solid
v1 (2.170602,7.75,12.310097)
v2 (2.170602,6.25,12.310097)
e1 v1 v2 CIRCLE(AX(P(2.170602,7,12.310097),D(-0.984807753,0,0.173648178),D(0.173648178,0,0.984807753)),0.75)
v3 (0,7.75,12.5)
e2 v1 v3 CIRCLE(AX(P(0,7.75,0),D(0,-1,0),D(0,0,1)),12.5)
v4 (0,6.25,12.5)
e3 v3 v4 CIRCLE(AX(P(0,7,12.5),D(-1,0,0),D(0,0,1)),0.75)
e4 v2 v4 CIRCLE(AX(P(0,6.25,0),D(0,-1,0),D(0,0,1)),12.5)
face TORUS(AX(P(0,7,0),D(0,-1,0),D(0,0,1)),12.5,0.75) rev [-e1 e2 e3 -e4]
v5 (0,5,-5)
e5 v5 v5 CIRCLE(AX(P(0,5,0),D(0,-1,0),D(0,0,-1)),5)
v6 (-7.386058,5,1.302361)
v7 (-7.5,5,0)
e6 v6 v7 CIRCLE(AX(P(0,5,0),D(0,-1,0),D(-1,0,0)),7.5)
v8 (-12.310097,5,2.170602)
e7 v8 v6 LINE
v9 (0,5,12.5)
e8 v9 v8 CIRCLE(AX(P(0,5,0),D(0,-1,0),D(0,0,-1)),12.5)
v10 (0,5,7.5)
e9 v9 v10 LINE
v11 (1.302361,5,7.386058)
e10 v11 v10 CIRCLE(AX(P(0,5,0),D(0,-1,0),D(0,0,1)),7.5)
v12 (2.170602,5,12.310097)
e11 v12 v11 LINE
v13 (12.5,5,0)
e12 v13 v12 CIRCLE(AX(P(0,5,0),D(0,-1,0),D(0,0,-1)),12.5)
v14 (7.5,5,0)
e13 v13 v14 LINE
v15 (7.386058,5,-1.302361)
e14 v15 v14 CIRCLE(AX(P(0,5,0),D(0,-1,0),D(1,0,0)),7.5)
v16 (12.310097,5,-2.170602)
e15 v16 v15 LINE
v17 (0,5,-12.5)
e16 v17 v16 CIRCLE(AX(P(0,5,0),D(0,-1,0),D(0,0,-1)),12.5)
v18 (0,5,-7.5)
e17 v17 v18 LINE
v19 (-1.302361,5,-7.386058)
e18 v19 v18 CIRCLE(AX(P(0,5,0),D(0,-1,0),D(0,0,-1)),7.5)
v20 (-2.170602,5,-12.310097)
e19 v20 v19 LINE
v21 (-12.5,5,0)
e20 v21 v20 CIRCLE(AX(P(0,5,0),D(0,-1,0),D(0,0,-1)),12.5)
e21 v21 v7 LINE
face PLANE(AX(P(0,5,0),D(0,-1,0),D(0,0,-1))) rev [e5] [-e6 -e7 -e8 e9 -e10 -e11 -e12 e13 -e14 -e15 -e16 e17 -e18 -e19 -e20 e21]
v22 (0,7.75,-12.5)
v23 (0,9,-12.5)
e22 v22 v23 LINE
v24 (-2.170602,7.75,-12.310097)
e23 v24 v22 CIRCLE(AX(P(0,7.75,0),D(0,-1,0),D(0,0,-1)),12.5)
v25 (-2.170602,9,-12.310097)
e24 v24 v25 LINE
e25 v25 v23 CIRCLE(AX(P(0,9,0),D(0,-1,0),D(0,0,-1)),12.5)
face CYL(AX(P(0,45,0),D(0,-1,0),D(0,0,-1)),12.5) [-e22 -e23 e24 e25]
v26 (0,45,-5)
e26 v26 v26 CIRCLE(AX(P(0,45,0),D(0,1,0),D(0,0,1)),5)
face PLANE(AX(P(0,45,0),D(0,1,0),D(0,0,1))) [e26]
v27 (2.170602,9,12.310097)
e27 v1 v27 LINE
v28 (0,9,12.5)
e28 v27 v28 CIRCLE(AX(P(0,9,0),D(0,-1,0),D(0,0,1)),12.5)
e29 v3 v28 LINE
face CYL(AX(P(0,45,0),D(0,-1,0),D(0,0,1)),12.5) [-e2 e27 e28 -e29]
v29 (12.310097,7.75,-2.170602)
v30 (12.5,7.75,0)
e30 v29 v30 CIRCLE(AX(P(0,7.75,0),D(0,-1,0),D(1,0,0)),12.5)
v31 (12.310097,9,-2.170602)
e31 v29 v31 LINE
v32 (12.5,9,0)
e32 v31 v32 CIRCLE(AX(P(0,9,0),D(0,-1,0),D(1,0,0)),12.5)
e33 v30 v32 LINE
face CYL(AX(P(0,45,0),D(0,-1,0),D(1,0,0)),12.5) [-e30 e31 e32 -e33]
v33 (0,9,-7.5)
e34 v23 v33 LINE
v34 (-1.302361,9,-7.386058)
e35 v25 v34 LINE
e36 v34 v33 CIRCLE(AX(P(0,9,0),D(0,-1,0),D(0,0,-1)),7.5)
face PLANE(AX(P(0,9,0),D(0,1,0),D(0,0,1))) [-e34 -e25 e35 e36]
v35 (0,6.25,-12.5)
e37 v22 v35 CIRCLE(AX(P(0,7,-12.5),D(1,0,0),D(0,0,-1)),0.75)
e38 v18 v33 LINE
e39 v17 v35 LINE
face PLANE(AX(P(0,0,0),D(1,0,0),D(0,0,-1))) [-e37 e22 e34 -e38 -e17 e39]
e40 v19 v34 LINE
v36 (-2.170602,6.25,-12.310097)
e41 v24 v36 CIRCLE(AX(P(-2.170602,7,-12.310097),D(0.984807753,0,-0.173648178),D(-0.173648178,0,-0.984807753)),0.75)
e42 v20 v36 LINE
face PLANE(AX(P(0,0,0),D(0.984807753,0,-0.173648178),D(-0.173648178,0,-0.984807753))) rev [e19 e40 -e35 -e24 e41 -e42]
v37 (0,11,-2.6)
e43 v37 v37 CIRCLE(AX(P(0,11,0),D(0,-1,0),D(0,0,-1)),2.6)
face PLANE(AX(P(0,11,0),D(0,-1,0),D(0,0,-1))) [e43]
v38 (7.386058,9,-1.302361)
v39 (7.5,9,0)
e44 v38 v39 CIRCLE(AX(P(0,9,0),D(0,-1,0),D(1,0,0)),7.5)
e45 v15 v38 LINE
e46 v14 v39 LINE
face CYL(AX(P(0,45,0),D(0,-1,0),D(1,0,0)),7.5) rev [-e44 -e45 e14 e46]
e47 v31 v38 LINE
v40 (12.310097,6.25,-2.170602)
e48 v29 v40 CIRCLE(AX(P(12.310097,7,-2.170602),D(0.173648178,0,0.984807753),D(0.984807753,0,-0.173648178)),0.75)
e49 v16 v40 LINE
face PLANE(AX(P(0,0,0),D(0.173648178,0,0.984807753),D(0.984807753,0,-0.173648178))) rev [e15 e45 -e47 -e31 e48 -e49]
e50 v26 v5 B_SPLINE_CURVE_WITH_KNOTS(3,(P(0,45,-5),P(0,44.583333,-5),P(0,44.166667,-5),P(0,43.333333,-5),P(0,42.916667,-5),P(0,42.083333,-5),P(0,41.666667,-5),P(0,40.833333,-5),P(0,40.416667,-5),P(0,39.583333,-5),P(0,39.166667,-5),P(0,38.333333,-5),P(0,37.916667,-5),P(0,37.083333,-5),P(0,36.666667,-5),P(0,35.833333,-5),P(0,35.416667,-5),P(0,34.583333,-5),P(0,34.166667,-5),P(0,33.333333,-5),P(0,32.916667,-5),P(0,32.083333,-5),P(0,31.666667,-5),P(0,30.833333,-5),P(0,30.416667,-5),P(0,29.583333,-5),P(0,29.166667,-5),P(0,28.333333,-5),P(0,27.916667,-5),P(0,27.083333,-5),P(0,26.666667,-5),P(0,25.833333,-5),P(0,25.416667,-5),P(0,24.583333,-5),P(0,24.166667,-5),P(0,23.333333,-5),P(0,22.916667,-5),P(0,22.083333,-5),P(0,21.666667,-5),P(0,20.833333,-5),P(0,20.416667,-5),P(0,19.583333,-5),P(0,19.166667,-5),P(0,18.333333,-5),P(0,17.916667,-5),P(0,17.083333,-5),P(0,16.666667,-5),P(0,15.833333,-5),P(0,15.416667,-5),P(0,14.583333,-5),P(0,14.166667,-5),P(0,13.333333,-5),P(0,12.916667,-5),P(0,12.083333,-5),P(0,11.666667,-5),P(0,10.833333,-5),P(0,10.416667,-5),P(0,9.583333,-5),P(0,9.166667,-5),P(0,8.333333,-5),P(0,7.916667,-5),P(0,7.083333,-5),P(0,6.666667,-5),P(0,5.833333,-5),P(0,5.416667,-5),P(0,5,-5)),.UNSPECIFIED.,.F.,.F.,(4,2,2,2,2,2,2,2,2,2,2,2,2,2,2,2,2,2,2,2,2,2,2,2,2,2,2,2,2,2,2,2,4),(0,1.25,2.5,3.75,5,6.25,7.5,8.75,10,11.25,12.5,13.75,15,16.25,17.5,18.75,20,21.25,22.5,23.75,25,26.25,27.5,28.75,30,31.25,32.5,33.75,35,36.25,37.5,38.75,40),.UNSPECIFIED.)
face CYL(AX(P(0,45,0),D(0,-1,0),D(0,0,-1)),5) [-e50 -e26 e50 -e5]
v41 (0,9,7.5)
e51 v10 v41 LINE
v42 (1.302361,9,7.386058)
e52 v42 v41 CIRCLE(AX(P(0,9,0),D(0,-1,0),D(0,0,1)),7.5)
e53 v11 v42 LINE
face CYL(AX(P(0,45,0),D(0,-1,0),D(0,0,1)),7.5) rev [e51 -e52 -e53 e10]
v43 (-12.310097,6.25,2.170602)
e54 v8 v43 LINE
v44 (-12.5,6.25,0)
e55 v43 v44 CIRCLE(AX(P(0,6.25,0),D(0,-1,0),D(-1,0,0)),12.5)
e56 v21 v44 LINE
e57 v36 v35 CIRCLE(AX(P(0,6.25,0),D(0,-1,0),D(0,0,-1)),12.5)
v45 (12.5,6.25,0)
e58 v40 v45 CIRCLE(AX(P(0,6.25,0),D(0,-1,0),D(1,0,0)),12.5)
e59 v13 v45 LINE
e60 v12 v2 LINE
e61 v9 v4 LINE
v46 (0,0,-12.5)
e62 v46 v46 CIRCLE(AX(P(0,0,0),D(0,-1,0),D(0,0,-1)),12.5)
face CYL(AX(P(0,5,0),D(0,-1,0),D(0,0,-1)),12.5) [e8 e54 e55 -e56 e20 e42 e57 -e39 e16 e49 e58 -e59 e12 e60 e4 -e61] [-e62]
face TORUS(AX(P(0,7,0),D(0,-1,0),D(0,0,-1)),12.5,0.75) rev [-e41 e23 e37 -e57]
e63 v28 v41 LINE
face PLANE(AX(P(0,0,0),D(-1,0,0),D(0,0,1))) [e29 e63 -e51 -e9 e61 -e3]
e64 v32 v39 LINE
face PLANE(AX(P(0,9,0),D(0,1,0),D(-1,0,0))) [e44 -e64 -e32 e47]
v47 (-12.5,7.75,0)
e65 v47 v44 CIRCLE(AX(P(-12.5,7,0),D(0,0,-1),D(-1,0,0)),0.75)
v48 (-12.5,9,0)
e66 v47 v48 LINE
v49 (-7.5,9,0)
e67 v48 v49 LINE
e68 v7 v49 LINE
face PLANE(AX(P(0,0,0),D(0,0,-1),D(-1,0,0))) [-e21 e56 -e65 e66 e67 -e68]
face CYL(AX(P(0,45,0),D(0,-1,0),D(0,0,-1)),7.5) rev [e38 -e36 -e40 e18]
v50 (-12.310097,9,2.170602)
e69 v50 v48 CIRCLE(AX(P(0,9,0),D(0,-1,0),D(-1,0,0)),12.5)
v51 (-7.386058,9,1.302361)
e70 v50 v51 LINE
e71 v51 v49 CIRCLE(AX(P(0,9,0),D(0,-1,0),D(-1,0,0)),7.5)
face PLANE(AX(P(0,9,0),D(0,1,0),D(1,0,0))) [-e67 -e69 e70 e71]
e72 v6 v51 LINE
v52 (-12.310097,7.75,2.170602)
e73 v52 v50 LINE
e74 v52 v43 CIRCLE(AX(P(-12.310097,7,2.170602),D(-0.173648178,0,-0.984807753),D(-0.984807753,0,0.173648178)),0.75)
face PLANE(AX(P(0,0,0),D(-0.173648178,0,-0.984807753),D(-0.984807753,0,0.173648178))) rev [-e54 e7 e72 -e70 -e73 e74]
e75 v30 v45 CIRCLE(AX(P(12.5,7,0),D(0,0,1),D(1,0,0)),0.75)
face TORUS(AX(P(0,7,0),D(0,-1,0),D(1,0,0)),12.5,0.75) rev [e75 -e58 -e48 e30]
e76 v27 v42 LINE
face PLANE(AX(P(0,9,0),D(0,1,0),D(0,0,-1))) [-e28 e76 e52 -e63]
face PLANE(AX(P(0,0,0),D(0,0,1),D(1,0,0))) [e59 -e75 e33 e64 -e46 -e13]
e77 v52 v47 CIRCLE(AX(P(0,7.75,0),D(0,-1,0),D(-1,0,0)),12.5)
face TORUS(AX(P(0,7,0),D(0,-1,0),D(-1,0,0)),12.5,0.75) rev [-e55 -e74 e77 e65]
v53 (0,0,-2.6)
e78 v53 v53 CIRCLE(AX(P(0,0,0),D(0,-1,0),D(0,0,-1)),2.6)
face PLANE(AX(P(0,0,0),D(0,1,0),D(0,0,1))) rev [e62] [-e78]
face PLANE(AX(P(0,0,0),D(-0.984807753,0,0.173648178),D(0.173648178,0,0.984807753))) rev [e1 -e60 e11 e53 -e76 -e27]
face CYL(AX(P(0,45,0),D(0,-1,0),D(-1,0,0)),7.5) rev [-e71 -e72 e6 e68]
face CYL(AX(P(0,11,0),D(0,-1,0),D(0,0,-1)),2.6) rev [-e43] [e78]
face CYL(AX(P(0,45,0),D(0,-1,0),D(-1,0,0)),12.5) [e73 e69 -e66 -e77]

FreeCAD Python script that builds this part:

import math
import FreeCAD as App
import Part
import Sketcher
Q = App.Units.Quantity

doc = App.newDocument("Part")
body = doc.addObject("PartDesign::Body", "Body")

sketch1 = doc.addObject("Sketcher::SketchObject", "Sketch")
body.addObject(sketch1)
sketch1.AttachmentSupport = (doc.XZ_Plane, [""])
sketch1.MapMode = "FlatFace"
sketch1.addGeometry(Part.Circle(App.Vector(0, 0, 0), App.Vector(0, 0, 1), 5), False)
sketch1.addConstraint([
    Sketcher.Constraint("Coincident", 0, 3, -1, 1),
    Sketcher.Constraint("Diameter", 0, Q("10 mm")),
])
pad1 = doc.addObject("PartDesign::Pad", "Pad")
body.addObject(pad1)
pad1.Profile = sketch1
pad1.Length = 45
pad1.Reversed = True

sketch2 = doc.addObject("Sketcher::SketchObject", "Sketch001")
body.addObject(sketch2)
sketch2.AttachmentSupport = (doc.XZ_Plane, [""])
sketch2.MapMode = "FlatFace"
sketch2.addGeometry(Part.Circle(App.Vector(0, 0, 0), App.Vector(0, 0, 1), 12), False)
sketch2.addConstraint([
    Sketcher.Constraint("Coincident", 0, 3, -1, 1),
    Sketcher.Constraint("Diameter", 0, Q("25 mm")),
])
pad2 = doc.addObject("PartDesign::Pad", "Pad001")
body.addObject(pad2)
pad2.Profile = sketch2
pad2.Length = 5
pad2.Reversed = True

sketch3 = doc.addObject("Sketcher::SketchObject", "Sketch002")
body.addObject(sketch3)
sketch3.AttachmentSupport = (doc.YZ_Plane, [""])
sketch3.MapMode = "FlatFace"
sketch3.addGeometry([
    Part.LineSegment(App.Vector(5, -7.5, 0), App.Vector(5, -12.5, 0)),
    Part.LineSegment(App.Vector(5, -12.5, 0), App.Vector(6.2, -12.5, 0)),
    Part.ArcOfCircle(Part.Circle(App.Vector(7, -12.5, 0), App.Vector(0, 0, 1), 0.8), math.radians(0), math.radians(180)),
    Part.LineSegment(App.Vector(7.8, -12.5, 0), App.Vector(9, -12.5, 0)),
    Part.LineSegment(App.Vector(9, -12.5, 0), App.Vector(9, -7.5, 0)),
    Part.LineSegment(App.Vector(9, -7.5, 0), App.Vector(5, -7.5, 0)),
], False)
sketch3.addConstraint([
    Sketcher.Constraint("Coincident", 0, 2, 1, 1),
    Sketcher.Constraint("Coincident", 1, 2, 2, 2),
    Sketcher.Constraint("Coincident", 2, 1, 3, 1),
    Sketcher.Constraint("Coincident", 3, 2, 4, 1),
    Sketcher.Constraint("Coincident", 4, 2, 5, 1),
    Sketcher.Constraint("Coincident", 5, 2, 0, 1),
    Sketcher.Constraint("Vertical", 0),
    Sketcher.Constraint("Horizontal", 1),
    Sketcher.Constraint("Horizontal", 3),
    Sketcher.Constraint("Vertical", 4),
    Sketcher.Constraint("Horizontal", 5),
    Sketcher.Constraint("Horizontal", 2, 3, 0, 2),
    Sketcher.Constraint("Horizontal", 1, 2, 2, 1),
    Sketcher.Constraint("Equal", 1, 3),
    Sketcher.Constraint("DistanceX", 5, 2, 5, 1, Q("4 mm")),
    Sketcher.Constraint("DistanceY", 0, 2, 0, 1, Q("5 mm")),
    Sketcher.Constraint("Radius", 2, Q("0.75 mm")),
    Sketcher.Constraint("DistanceX", -1, 1, 2, 3, Q("7 mm")),
    Sketcher.Constraint("DistanceY", 2, 3, -1, 1, Q("12.5 mm")),
])
revolution = doc.addObject("PartDesign::Revolution", "Revolution")
body.addObject(revolution)
revolution.Profile = sketch3
revolution.ReferenceAxis = (sketch3, ["H_Axis"])
revolution.Angle = 10
doc.recompute()

polarpattern = doc.addObject("PartDesign::PolarPattern", "PolarPattern")
body.addObject(polarpattern)
polarpattern.Originals = [revolution]
polarpattern.Axis = (doc.Y_Axis, [""])
polarpattern.Angle = 360
polarpattern.Occurrences = 4
body.Tip = polarpattern

sketch4 = doc.addObject("Sketcher::SketchObject", "Sketch003")
body.addObject(sketch4)
sketch4.AttachmentSupport = (doc.XZ_Plane, [""])
sketch4.MapMode = "FlatFace"
sketch4.addGeometry(Part.Circle(App.Vector(0, 0, 0), App.Vector(0, 0, 1), 2.6), False)
sketch4.addConstraint([
    Sketcher.Constraint("Coincident", 0, 3, -1, 1),
    Sketcher.Constraint("Diameter", 0, Q("5.2 mm")),
])
pocket1 = doc.addObject("PartDesign::Pocket", "Pocket")
body.addObject(pocket1)
pocket1.Profile = sketch4
pocket1.Length = 11

doc.recompute()
